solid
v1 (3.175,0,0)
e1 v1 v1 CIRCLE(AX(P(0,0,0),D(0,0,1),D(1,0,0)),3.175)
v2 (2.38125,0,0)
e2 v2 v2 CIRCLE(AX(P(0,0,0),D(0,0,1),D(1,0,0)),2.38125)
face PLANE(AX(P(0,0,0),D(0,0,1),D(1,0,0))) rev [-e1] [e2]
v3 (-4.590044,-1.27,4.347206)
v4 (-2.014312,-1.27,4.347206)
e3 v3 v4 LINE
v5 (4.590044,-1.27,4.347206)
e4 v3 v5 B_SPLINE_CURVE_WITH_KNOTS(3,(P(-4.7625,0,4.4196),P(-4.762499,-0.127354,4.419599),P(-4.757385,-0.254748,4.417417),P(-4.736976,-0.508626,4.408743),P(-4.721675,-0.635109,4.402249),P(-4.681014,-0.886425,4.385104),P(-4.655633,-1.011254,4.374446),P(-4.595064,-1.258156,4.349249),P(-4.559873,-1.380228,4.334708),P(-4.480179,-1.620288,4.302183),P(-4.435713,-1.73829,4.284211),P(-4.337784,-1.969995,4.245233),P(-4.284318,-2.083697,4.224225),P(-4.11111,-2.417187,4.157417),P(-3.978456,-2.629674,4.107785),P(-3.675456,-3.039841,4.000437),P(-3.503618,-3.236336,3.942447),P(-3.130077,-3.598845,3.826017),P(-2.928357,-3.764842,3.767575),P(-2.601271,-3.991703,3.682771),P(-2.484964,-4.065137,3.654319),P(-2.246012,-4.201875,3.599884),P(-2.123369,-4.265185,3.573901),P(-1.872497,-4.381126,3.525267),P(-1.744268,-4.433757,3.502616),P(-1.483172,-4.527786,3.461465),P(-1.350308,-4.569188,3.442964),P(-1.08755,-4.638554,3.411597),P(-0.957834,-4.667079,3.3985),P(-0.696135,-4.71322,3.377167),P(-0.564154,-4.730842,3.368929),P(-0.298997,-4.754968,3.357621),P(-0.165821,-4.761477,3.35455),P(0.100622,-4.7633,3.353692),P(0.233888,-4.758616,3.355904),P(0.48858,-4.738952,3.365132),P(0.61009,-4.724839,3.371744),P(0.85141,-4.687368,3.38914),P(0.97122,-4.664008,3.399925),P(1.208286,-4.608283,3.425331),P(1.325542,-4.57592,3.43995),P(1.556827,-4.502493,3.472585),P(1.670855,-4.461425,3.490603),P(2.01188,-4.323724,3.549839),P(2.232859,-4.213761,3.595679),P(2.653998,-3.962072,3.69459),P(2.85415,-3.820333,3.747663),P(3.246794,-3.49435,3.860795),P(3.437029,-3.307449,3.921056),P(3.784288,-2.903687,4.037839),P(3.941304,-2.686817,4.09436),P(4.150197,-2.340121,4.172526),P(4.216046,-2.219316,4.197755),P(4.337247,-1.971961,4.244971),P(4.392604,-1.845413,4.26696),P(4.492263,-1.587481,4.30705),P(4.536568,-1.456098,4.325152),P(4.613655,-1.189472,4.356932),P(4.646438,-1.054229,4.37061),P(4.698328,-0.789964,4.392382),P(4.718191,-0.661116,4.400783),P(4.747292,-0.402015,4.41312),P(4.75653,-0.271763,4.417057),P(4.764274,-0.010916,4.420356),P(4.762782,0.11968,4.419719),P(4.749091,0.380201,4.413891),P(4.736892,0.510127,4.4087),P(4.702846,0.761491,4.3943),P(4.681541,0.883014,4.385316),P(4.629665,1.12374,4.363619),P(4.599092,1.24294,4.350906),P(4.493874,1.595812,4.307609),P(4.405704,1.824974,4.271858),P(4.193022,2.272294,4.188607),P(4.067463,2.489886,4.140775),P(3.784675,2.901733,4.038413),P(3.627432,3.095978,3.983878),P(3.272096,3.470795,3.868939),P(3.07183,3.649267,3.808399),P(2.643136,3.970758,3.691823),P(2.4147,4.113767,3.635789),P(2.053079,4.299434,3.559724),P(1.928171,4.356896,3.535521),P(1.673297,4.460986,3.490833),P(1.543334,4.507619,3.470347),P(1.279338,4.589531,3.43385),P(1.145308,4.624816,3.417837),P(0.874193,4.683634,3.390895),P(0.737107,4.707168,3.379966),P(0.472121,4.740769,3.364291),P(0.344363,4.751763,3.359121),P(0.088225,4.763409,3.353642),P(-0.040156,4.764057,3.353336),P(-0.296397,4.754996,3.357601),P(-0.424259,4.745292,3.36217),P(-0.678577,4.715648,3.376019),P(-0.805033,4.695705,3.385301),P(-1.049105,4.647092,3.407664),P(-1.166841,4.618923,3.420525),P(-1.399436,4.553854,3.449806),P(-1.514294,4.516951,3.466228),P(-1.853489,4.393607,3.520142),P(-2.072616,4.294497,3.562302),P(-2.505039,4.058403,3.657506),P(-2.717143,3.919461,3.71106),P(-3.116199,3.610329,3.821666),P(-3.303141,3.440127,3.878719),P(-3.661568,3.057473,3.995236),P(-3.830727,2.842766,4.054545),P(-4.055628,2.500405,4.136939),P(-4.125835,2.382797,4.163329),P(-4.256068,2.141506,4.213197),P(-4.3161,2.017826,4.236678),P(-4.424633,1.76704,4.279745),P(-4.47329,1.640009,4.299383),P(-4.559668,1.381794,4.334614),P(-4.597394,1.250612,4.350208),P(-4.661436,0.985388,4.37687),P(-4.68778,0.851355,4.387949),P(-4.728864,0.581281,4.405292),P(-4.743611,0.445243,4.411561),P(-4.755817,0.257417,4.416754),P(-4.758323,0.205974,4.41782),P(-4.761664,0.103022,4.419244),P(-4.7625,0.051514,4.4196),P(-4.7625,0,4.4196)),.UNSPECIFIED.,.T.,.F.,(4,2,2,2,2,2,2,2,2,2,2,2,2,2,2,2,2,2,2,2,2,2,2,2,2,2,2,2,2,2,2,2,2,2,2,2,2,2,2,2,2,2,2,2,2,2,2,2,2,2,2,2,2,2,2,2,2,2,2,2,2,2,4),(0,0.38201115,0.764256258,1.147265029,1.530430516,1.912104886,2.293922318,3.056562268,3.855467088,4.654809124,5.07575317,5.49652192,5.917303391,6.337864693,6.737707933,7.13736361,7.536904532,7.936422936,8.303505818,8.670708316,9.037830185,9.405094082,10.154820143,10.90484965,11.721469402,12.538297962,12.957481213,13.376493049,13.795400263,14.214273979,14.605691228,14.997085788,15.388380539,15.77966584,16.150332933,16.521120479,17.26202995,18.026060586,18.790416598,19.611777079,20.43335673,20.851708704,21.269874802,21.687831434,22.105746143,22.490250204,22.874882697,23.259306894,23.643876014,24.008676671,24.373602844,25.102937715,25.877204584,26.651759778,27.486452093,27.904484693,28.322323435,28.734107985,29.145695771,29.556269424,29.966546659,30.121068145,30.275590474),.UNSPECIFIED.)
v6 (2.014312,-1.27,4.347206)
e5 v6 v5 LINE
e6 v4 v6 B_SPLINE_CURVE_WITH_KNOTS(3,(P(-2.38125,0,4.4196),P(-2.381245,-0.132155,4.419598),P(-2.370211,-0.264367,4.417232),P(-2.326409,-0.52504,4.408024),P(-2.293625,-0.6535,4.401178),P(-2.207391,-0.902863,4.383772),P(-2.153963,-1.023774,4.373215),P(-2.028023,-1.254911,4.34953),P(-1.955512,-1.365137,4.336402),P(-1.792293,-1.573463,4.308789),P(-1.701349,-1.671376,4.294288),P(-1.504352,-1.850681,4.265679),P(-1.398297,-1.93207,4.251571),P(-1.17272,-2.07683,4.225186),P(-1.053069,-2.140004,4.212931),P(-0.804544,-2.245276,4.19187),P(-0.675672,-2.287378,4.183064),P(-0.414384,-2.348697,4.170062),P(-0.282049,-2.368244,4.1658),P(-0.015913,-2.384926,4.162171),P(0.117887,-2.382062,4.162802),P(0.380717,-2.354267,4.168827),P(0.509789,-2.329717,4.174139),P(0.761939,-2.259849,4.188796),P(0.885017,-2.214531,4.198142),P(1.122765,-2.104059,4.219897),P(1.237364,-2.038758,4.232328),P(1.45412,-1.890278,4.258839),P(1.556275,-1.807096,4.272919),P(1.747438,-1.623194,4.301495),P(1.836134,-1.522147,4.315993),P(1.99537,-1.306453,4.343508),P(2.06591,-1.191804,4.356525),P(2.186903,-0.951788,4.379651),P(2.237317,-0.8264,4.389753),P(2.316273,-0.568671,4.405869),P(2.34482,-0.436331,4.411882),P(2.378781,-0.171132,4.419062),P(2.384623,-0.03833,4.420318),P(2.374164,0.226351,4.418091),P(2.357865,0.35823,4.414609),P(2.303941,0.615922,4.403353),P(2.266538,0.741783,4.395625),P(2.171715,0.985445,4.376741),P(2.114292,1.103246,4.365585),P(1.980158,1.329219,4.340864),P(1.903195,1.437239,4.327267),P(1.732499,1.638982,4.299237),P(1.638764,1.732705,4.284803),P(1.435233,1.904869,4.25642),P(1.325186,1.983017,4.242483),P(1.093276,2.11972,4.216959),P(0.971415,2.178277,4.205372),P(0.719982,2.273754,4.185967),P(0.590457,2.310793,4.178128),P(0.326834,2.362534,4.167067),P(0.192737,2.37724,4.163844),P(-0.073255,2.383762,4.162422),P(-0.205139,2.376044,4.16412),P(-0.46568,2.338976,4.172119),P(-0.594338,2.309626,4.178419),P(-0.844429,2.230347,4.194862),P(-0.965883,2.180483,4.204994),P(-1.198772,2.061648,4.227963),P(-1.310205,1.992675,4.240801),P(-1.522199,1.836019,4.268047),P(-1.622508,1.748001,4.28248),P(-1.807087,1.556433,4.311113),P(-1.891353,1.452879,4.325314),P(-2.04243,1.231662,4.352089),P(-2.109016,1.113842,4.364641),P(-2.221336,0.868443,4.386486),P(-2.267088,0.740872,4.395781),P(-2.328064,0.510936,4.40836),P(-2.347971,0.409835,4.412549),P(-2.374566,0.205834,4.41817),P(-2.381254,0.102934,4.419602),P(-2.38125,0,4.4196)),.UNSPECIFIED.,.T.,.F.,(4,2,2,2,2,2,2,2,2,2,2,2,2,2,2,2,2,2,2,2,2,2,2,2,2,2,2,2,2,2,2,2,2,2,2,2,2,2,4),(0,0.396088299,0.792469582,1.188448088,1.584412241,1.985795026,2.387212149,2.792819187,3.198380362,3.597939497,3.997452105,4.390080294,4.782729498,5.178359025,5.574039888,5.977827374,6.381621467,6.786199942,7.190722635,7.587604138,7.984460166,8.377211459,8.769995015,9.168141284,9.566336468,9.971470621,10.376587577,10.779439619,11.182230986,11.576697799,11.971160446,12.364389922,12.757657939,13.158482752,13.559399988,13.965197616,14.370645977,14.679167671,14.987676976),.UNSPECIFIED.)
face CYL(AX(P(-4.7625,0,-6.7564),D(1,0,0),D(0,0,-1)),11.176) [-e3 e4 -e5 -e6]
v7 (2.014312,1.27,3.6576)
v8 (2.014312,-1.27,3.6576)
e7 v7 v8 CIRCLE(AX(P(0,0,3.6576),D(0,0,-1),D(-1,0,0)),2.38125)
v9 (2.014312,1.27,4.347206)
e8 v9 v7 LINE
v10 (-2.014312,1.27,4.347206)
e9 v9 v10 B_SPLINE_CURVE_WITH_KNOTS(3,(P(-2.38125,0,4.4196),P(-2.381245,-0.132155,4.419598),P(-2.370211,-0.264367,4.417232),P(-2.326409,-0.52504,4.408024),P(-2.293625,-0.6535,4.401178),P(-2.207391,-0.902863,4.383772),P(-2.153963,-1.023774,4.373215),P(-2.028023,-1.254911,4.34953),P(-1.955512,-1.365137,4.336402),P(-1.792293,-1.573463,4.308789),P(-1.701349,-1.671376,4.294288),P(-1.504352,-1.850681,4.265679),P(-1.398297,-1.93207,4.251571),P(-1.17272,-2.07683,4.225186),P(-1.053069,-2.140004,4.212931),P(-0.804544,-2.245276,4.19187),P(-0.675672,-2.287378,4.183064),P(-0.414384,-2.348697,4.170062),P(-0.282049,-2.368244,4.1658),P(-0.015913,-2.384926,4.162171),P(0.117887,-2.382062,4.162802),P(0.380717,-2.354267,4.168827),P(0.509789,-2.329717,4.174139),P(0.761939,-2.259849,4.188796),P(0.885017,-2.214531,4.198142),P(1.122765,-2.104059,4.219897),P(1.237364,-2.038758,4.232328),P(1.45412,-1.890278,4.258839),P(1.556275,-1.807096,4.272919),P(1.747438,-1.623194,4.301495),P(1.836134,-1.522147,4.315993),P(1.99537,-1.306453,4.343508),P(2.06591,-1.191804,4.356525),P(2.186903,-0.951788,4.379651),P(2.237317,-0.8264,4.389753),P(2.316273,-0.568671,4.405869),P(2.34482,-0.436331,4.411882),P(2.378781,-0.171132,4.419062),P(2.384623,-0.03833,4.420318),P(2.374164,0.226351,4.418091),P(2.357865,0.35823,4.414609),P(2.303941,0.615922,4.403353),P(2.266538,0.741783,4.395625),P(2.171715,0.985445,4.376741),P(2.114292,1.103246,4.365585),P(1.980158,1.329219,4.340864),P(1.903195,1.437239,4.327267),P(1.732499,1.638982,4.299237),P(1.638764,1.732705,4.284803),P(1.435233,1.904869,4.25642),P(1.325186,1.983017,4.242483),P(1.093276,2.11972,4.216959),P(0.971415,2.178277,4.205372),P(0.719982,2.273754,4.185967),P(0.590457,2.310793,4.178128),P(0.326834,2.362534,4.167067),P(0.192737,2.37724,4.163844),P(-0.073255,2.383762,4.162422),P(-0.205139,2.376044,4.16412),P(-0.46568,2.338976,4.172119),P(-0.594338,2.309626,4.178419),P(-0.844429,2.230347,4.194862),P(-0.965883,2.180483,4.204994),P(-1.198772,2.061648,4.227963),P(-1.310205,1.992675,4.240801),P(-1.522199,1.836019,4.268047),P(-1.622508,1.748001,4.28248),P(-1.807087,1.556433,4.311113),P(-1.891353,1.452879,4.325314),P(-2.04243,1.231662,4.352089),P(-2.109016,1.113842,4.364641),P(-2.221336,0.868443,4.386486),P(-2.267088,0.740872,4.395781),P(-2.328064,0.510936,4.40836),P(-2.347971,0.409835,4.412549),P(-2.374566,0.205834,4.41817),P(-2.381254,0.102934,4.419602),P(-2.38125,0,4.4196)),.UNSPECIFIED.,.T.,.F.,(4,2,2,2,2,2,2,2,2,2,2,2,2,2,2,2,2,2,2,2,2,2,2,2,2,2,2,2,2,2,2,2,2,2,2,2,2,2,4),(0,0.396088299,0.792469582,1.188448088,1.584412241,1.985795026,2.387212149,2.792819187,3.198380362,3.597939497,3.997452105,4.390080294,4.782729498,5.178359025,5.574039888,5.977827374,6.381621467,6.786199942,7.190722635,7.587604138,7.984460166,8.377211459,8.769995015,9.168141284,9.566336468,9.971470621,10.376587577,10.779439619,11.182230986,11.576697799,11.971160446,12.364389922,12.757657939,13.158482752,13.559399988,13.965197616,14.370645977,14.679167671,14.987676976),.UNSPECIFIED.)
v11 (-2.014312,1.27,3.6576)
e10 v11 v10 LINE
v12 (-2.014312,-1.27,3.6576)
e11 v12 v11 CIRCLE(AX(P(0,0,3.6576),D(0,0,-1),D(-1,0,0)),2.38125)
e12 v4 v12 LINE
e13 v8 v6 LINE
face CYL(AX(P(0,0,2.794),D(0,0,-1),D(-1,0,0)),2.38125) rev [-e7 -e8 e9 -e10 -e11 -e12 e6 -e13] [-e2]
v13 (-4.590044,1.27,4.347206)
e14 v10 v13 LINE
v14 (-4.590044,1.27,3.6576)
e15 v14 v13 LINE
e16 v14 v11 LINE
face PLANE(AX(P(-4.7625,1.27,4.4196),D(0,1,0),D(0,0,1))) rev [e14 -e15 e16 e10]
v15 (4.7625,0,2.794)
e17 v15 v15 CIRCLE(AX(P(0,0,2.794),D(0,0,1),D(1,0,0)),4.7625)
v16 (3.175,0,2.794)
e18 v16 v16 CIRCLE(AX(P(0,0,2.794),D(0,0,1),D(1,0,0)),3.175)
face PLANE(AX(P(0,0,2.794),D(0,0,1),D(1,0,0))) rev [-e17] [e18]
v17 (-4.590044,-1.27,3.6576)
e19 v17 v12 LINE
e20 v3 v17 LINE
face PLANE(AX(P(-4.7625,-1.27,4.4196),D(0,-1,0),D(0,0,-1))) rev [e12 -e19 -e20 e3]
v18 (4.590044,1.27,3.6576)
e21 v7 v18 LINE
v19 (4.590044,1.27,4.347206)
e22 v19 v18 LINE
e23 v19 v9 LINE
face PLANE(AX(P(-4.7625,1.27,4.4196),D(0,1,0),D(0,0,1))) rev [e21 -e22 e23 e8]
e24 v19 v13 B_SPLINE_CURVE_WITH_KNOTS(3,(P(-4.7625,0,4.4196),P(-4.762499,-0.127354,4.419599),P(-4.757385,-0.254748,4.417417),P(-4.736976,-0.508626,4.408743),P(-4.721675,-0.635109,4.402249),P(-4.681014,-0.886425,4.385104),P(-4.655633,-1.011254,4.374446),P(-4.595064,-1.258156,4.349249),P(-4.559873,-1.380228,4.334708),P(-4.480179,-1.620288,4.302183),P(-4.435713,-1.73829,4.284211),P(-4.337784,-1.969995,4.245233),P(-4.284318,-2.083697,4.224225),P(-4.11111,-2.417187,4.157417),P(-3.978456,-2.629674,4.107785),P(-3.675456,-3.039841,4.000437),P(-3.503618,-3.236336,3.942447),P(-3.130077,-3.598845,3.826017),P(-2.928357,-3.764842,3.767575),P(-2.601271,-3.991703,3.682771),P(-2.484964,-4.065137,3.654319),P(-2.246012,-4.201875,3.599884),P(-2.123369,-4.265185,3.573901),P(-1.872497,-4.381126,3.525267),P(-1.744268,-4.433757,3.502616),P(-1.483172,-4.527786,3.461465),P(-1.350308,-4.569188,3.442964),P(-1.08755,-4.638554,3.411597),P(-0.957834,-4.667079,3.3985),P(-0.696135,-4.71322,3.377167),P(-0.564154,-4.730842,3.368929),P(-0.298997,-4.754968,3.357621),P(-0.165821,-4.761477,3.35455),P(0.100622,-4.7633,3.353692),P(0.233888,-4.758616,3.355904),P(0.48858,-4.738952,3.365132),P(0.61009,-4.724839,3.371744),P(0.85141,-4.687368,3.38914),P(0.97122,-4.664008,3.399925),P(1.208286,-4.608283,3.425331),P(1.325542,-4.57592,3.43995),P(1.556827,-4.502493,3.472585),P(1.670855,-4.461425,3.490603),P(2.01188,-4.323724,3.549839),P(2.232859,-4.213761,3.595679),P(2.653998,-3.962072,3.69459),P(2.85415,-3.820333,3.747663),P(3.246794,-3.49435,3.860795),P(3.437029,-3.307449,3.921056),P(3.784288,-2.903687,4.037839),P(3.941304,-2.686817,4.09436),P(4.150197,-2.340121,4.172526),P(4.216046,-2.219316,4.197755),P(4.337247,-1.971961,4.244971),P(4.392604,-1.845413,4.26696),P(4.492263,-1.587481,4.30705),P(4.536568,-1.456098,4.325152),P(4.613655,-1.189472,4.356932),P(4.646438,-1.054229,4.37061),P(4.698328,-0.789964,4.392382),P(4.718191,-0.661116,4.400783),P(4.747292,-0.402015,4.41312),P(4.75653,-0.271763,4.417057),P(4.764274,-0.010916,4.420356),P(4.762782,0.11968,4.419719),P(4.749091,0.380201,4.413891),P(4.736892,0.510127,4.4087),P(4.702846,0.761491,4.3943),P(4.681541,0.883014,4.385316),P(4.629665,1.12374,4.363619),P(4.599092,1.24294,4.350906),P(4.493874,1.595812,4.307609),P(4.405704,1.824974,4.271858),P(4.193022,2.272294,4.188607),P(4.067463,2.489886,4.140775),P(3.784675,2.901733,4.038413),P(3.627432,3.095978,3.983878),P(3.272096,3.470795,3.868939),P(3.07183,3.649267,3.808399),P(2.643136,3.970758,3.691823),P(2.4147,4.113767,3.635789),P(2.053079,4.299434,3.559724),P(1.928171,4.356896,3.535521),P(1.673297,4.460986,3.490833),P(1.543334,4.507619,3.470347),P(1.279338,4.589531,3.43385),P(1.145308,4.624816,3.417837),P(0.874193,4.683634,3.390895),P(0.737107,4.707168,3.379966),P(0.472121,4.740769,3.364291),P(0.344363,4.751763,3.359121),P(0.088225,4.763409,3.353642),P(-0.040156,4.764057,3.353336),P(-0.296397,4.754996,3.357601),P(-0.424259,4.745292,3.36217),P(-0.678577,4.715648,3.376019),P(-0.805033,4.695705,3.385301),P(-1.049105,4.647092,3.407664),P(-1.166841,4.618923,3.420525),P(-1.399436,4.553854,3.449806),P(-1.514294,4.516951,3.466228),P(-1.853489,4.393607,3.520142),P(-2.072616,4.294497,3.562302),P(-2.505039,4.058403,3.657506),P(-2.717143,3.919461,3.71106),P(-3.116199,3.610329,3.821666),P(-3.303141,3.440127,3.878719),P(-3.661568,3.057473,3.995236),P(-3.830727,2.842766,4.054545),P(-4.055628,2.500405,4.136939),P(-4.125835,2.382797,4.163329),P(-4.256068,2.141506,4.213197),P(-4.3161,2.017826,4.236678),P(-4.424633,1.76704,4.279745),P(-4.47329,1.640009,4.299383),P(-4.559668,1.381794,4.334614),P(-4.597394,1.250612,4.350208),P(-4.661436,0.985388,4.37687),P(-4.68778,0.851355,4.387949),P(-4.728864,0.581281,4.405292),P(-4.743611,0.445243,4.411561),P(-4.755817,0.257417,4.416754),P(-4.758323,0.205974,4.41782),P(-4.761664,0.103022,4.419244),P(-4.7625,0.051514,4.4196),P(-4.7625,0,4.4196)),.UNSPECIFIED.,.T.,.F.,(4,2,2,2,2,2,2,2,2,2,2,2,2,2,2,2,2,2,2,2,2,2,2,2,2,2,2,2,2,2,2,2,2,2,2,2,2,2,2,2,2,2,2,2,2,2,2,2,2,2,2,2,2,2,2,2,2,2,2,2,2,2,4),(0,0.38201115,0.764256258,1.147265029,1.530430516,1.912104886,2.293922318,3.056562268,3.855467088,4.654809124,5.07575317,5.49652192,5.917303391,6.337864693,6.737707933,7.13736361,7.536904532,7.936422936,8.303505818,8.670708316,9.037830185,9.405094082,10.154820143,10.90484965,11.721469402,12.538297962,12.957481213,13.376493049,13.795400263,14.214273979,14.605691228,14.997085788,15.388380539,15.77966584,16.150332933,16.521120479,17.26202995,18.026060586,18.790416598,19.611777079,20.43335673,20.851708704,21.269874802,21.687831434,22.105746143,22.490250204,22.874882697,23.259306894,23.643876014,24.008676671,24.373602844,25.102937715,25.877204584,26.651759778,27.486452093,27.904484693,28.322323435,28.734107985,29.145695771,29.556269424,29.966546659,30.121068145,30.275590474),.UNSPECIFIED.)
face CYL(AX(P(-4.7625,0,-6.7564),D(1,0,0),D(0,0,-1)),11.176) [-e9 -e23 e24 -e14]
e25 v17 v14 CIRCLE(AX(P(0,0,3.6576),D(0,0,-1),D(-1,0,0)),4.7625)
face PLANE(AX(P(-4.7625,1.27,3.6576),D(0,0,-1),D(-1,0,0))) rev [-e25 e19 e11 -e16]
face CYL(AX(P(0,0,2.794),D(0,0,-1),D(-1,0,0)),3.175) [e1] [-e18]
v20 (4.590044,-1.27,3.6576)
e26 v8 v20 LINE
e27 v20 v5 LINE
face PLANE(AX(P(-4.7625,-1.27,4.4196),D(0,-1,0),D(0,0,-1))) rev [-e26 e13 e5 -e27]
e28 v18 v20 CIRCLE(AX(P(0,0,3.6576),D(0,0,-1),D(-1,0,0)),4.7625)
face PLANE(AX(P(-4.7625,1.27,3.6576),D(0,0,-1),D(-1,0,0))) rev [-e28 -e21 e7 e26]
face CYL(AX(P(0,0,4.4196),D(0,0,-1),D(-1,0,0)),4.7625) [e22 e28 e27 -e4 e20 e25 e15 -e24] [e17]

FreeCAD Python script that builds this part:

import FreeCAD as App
import Part
import Sketcher
Q = App.Units.Quantity

doc = App.newDocument("Part")
body = doc.addObject("PartDesign::Body", "Body")

# Sketch on XY plane
sketch1 = body.newObject("Sketcher::SketchObject", "Sketch")
sketch1.AttachmentSupport = (doc.getObject("XY_Plane"), [""])
sketch1.MapMode = "FlatFace"
sketch1.addGeometry([
    Part.Circle(App.Vector(0, 0, 0), App.Vector(0, 0, 1), 3.2),
    Part.Circle(App.Vector(0, 0, 0), App.Vector(0, 0, 1), 2.4),
], False)
sketch1.addConstraint([
    Sketcher.Constraint("Coincident", 0, 3, -1, 1),
    Sketcher.Constraint("Coincident", 1, 3, -1, 1),
    Sketcher.Constraint("Diameter", 0, Q("0.25 in")),
    Sketcher.Constraint("Diameter", 1, Q("0.1875 in")),
])
pad1 = body.newObject("PartDesign::Pad", "Pad")
pad1.Profile = sketch1
pad1.Length = Q("0.11 in")

# Sketch on XY plane
sketch2 = body.newObject("Sketcher::SketchObject", "Sketch001")
sketch2.AttachmentSupport = (doc.getObject("XY_Plane"), [""])
sketch2.MapMode = "FlatFace"
sketch2.AttachmentOffset = App.Placement(App.Vector(0, 0, 0.11 * 25.4), App.Rotation())
sketch2.addGeometry([
    Part.Circle(App.Vector(0, 0, 0), App.Vector(0, 0, 1), 4.8),
    Part.Circle(App.Vector(0, 0, 0), App.Vector(0, 0, 1), 2.4),
], False)
sketch2.addConstraint([
    Sketcher.Constraint("Coincident", 0, 3, -1, 1),
    Sketcher.Constraint("Coincident", 1, 3, -1, 1),
    Sketcher.Constraint("Diameter", 0, Q("0.375 in")),
    Sketcher.Constraint("Diameter", 1, Q("0.1875 in")),
])
pad2 = body.newObject("PartDesign::Pad", "Pad001")
pad2.Profile = sketch2
pad2.Length = Q("0.064 in")

# Sketch on YZ plane
sketch3 = body.newObject("Sketcher::SketchObject", "Sketch002")
sketch3.AttachmentSupport = (doc.getObject("YZ_Plane"), [""])
sketch3.MapMode = "FlatFace"
sketch3.addGeometry([
    Part.Circle(App.Vector(0, -7, 0), App.Vector(0, 0, 1), 22),
    Part.Circle(App.Vector(0, -7, 0), App.Vector(0, 0, 1), 11),
], False)
sketch3.addConstraint([
    Sketcher.Constraint("Coincident", 1, 3, 0, 3),
    Sketcher.Constraint("PointOnObject", 0, 3, -2),
    Sketcher.Constraint("Diameter", 1, Q("0.88 in")),
    Sketcher.Constraint("DistanceY", 0, 3, -1, 1, Q("0.266 in")),
    Sketcher.Constraint("Diameter", 0, Q("44.722332 mm")),
])
pocket1 = body.newObject("PartDesign::Pocket", "Pocket")
pocket1.Profile = sketch3
pocket1.Type = "ThroughAll"
pocket1.Midplane = True

# Sketch on YZ plane
sketch4 = body.newObject("Sketcher::SketchObject", "Sketch003")
sketch4.AttachmentSupport = (doc.getObject("YZ_Plane"), [""])
sketch4.MapMode = "FlatFace"
sketch4.addGeometry([
    Part.LineSegment(App.Vector(1.3, 4.4, 0), App.Vector(-1.3, 4.4, 0)),
    Part.LineSegment(App.Vector(-1.3, 4.4, 0), App.Vector(-1.3, 3.7, 0)),
    Part.LineSegment(App.Vector(-1.3, 3.7, 0), App.Vector(1.3, 3.7, 0)),
    Part.LineSegment(App.Vector(1.3, 3.7, 0), App.Vector(1.3, 4.4, 0)),
], False)
sketch4.addConstraint([
    Sketcher.Constraint("Coincident", 0, 2, 1, 1),
    Sketcher.Constraint("Coincident", 1, 2, 2, 1),
    Sketcher.Constraint("Coincident", 2, 2, 3, 1),
    Sketcher.Constraint("Coincident", 3, 2, 0, 1),
    Sketcher.Constraint("Horizontal", 0),
    Sketcher.Constraint("Vertical", 1),
    Sketcher.Constraint("Horizontal", 2),
    Sketcher.Constraint("Vertical", 3),
    Sketcher.Constraint("DistanceX", 0, 2, 0, 1, Q("0.1 in")),
    Sketcher.Constraint("DistanceY", 1, 2, 1, 1, Q("0.03 in")),
    Sketcher.Constraint("DistanceX", 0, 2, -1, 1, Q("0.05 in")),
    Sketcher.Constraint("DistanceY", -1, 1, 0, 2, Q("0.174 in")),
])
pocket2 = body.newObject("PartDesign::Pocket", "Pocket001")
pocket2.Profile = sketch4
pocket2.Type = "ThroughAll"
pocket2.Midplane = True

doc.recompute()
